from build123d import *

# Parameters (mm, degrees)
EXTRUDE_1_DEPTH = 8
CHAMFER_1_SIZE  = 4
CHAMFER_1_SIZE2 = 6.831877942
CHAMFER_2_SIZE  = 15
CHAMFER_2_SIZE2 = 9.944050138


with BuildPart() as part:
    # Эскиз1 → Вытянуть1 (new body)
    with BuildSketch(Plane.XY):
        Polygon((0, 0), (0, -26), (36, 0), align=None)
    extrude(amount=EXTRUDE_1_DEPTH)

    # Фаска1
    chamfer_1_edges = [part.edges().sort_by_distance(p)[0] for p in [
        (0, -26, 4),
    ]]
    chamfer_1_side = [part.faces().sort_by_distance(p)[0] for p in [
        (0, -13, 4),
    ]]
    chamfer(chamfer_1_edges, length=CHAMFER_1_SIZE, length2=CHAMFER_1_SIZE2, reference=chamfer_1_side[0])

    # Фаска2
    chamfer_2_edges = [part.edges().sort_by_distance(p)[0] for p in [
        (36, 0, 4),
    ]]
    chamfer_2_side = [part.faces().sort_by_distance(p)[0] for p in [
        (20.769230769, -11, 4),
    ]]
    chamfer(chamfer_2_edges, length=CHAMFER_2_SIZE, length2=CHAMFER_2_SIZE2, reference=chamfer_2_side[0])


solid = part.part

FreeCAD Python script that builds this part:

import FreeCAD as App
import Part
import Sketcher
from FreeCAD import Vector


def edges_at(feature, points):
    """Names of the edges that pass closest to the given points."""
    edges = feature.Shape.Edges
    near = lambda p: min(range(len(edges)), key=lambda i: edges[i].distToShape(Part.Vertex(*p))[0])
    return sorted({f"Edge{near(p) + 1}" for p in points})


def add_polygon(sketch, points):
    """Adds a closed chain of lines whose ends are joined by coincident constraints."""
    first, n = sketch.GeometryCount, len(points)
    for a, b in zip(points, points[1:] + points[:1]):
        sketch.addGeometry(Part.LineSegment(App.Vector(*a, 0), App.Vector(*b, 0)), False)
    for i in range(n):
        sketch.addConstraint(Sketcher.Constraint("Coincident", first + i, 2, first + (i + 1) % n, 1))

doc = App.newDocument("Part")
body = doc.addObject("PartDesign::Body", "Body")

# Sketch on XY plane
sketch1 = body.newObject("Sketcher::SketchObject", "Sketch")
sketch1.AttachmentSupport = (doc.getObject("XY_Plane"), [""])
sketch1.MapMode = "FlatFace"
add_polygon(sketch1, [(0, 0), (0, -26), (36, 0)])  # lines 0-2
sketch1.addConstraint([
    Sketcher.Constraint("Vertical", 0),
    Sketcher.Constraint("Horizontal", 2),
    Sketcher.Constraint("Coincident", 2, 2, -1, 1),
    Sketcher.Constraint("DistanceX", 2, 2, 2, 1, 36.0),
    Sketcher.Constraint("DistanceY", 0, 2, 0, 1, 26.0),
])
pad1 = body.newObject("PartDesign::Pad", "Pad")
pad1.Profile = sketch1
pad1.Length = 8
doc.recompute()

chamfer = body.newObject("PartDesign::Chamfer", "Chamfer")
chamfer.Base = (pad1, edges_at(pad1, [(0, -26, 4)]))
chamfer.ChamferType = "Two distances"
chamfer.Size = 4
chamfer.Size2 = 6.831878
doc.recompute()

chamfer2 = body.newObject("PartDesign::Chamfer", "Chamfer001")
chamfer2.Base = (chamfer, edges_at(chamfer, [(36, 0, 4)]))
chamfer2.ChamferType = "Two distances"
chamfer2.Size = 15
chamfer2.Size2 = 9.94405
chamfer2.FlipDirection = True

doc.recompute()
